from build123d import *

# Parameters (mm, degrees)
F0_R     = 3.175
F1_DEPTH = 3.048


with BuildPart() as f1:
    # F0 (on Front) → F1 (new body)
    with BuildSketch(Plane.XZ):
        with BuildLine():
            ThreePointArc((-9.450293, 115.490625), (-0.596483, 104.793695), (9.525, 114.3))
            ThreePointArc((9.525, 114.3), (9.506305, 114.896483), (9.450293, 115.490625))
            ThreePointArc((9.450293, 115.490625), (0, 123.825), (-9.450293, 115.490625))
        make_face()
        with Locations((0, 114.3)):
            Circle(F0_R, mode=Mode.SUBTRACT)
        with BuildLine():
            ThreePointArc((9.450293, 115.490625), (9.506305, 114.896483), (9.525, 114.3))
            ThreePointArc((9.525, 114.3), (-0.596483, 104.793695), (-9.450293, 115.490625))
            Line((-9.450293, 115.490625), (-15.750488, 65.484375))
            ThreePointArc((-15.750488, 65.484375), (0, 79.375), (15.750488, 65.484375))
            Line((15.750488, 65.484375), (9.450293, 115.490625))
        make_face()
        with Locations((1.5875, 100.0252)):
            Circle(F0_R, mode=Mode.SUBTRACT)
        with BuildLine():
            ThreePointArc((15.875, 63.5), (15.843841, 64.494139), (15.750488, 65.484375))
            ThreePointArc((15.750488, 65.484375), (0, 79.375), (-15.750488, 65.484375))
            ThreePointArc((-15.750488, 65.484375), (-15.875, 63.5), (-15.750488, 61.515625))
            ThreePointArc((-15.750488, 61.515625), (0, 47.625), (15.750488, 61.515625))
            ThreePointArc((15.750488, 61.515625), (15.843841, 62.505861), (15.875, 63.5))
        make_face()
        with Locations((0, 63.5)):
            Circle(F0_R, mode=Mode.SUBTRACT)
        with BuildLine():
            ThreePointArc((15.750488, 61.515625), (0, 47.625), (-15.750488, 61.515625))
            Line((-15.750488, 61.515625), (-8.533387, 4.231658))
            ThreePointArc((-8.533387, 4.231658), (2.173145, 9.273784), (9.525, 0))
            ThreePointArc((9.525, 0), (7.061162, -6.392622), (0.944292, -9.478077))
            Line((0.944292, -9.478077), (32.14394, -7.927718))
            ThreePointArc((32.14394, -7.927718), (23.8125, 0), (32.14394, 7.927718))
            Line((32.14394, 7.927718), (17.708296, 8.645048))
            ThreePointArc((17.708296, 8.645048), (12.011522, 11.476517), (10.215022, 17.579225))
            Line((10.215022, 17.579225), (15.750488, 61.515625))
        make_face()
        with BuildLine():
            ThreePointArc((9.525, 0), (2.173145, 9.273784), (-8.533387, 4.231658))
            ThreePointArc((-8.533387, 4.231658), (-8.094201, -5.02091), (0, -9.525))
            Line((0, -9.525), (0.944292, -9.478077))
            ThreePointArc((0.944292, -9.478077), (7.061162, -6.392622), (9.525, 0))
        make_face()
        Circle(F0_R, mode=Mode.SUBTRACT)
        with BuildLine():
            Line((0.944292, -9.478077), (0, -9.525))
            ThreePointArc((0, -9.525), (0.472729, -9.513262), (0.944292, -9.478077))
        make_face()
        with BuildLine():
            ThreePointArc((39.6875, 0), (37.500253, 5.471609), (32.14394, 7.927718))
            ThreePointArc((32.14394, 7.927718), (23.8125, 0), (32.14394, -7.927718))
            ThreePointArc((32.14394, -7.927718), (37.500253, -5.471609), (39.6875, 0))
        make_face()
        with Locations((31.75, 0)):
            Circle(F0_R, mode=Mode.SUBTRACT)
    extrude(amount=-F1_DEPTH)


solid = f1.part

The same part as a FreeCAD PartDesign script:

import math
import FreeCAD as App
import Part
import Sketcher

V = App.Vector
Q = App.Units.Quantity

doc = App.newDocument("Part")
body = doc.addObject("PartDesign::Body", "Body")

sketch1 = doc.addObject("Sketcher::SketchObject", "Sketch")
body.addObject(sketch1)
sketch1.AttachmentSupport = (doc.XZ_Plane, [""])
sketch1.MapMode = "FlatFace"
sketch1.addGeometry([
    Part.ArcOfCircle(Part.Circle(V(0, 114.3, 0), V(0, 0, 1), 9.525), math.radians(7.180756), math.radians(172.819244)),
    Part.LineSegment(V(-9.450293, 115.490625, 0), V(-15.750488, 65.484375, 0)),
    Part.ArcOfCircle(Part.Circle(V(-0.000035, 63.5, 0), V(0, 0, 1), 15.874965), math.radians(172.819228), math.radians(187.180772)),
    Part.LineSegment(V(-15.750488, 61.515625, 0), V(-8.533387, 4.231658, 0)),
    Part.ArcOfCircle(Part.Circle(V(0, 0, 0), V(0, 0, 1), 9.525), math.radians(153.623447), math.radians(270.000002)),
    Part.ArcOfCircle(Part.Circle(V(0, 0.00006, 0), V(0, 0, 1), 9.52506), math.radians(-90.000001), math.radians(-84.310487)),
    Part.LineSegment(V(0.944292, -9.478077, 0), V(32.14394, -7.927718, 0)),
    Part.ArcOfCircle(Part.Circle(V(31.750002, -0.000002, 0), V(0, 0, 1), 7.937498), math.radians(-87.155242), math.radians(0.000011)),
    Part.ArcOfCircle(Part.Circle(V(31.750002, 0.000002, 0), V(0, 0, 1), 7.937498), math.radians(-0.000011), math.radians(87.155242)),
    Part.LineSegment(V(32.14394, 7.927718, 0), V(17.708296, 8.645048, 0)),
    Part.ArcOfCircle(Part.Circle(V(18.102866, 16.58545, 0), V(0, 0, 1), 7.9502), math.radians(172.819247), math.radians(267.155228)),
    Part.LineSegment(V(10.215022, 17.579225, 0), V(15.750488, 61.515625, 0)),
    Part.ArcOfCircle(Part.Circle(V(-0.000171, 63.500013, 0), V(0, 0, 1), 15.875171), math.radians(-7.180725), math.radians(-0.000047)),
    Part.ArcOfCircle(Part.Circle(V(-0.000171, 63.499987, 0), V(0, 0, 1), 15.875171), math.radians(0.000047), math.radians(7.180725)),
    Part.LineSegment(V(15.750488, 65.484375, 0), V(9.450293, 115.490625, 0)),
    Part.Circle(V(0, 0, 0), V(0, 0, 1), 3.175),
    Part.Circle(V(31.75, 0, 0), V(0, 0, 1), 3.175),
    Part.Circle(V(0, 63.5, 0), V(0, 0, 1), 3.175),
    Part.Circle(V(1.5875, 100.0252, 0), V(0, 0, 1), 3.175),
    Part.Circle(V(0, 114.3, 0), V(0, 0, 1), 3.175),
], False)
sketch1.addConstraint([
    Sketcher.Constraint("Coincident", 0, 2, 1, 1),
    Sketcher.Constraint("Coincident", 1, 2, 2, 1),
    Sketcher.Constraint("Coincident", 2, 2, 3, 1),
    Sketcher.Constraint("Coincident", 3, 2, 4, 1),
    Sketcher.Constraint("Coincident", 4, 2, 5, 1),
    Sketcher.Constraint("Coincident", 5, 2, 6, 1),
    Sketcher.Constraint("Coincident", 6, 2, 7, 1),
    Sketcher.Constraint("Coincident", 7, 2, 8, 1),
    Sketcher.Constraint("Coincident", 8, 2, 9, 1),
    Sketcher.Constraint("Coincident", 9, 2, 10, 2),
    Sketcher.Constraint("Coincident", 10, 1, 11, 1),
    Sketcher.Constraint("Coincident", 11, 2, 12, 1),
    Sketcher.Constraint("Coincident", 12, 2, 13, 1),
    Sketcher.Constraint("Coincident", 13, 2, 14, 1),
    Sketcher.Constraint("Coincident", 14, 2, 0, 1),
    Sketcher.Constraint("Coincident", 4, 3, -1, 1),
    Sketcher.Constraint("Coincident", 15, 3, -1, 1),
    Sketcher.Constraint("Coincident", 8, 3, 7, 3),
    Sketcher.Constraint("Coincident", 16, 3, 7, 3),
    Sketcher.Constraint("Coincident", 19, 3, 0, 3),
    Sketcher.Constraint("PointOnObject", 0, 3, -2),
    Sketcher.Constraint("PointOnObject", 5, 3, -2),
    Sketcher.Constraint("PointOnObject", 7, 3, -1),
    Sketcher.Constraint("PointOnObject", 17, 3, -2),
    Sketcher.Constraint("PointOnObject", 4, 2, -2),
    Sketcher.Constraint("PointOnObject", 7, 2, -1),
    Sketcher.Constraint("Diameter", 15, Q("0.25 in")),
    Sketcher.Constraint("Diameter", 16, Q("0.25 in")),
    Sketcher.Constraint("Diameter", 17, Q("0.25 in")),
    Sketcher.Constraint("Diameter", 18, Q("0.25 in")),
    Sketcher.Constraint("Diameter", 19, Q("0.25 in")),
    Sketcher.Constraint("Radius", 0, Q("0.375 in")),
    Sketcher.Constraint("Radius", 4, Q("0.375 in")),
    Sketcher.Constraint("Radius", 7, Q("0.3124999 in")),
    Sketcher.Constraint("Radius", 10, Q("0.313 in")),
    Sketcher.Constraint("DistanceY", 2, 3, 0, 3, Q("2 in")),
    Sketcher.Constraint("DistanceY", 17, 3, 0, 3, Q("2 in")),
    Sketcher.Constraint("DistanceY", -1, 1, 0, 3, Q("4.5 in")),
    Sketcher.Constraint("DistanceY", -1, 1, 12, 2, Q("2.5 in")),
    Sketcher.Constraint("DistanceX", -1, 1, 7, 3, Q("1.2500001 in")),
    Sketcher.Constraint("DistanceX", -1, 1, 18, 3, Q("0.0625 in")),
    Sketcher.Constraint("DistanceY", -1, 1, 18, 3, Q("3.938 in")),
    Sketcher.Constraint("DistanceY", -1, 1, 0, 2, Q("4.546875 in")),
    Sketcher.Constraint("DistanceY", -1, 1, 1, 2, Q("2.578125 in")),
    Sketcher.Constraint("DistanceY", -1, 1, 2, 2, Q("2.421875 in")),
    Sketcher.Constraint("DistanceY", -1, 1, 11, 2, Q("2.421875 in")),
    Sketcher.Constraint("DistanceX", -1, 1, 12, 2, Q("0.625 in")),
    Sketcher.Constraint("DistanceY", -1, 1, 13, 2, Q("2.578125 in")),
    Sketcher.Constraint("DistanceY", -1, 1, 14, 2, Q("4.546875 in")),
    Sketcher.Constraint("Radius", 5, 9.52506),
    Sketcher.Constraint("Radius", 12, 15.875171),
    Sketcher.Constraint("Radius", 13, 15.875171),
    Sketcher.Constraint("Radius", 2, 15.874965),
    Sketcher.Constraint("DistanceX", 2, 3, 10, 3, 18.102901),
    Sketcher.Constraint("Distance", 3, 57.736812),
    Sketcher.Constraint("Distance", 11, 44.283729),
    Sketcher.Constraint("DistanceY", -1, 1, 10, 3, 16.58545),
    Sketcher.Constraint("DistanceX", 1, 2, -1, 1, 15.750488),
    Sketcher.Constraint("DistanceX", -1, 1, 6, 2, 32.14394),
    Sketcher.Constraint("DistanceX", -1, 1, 8, 2, 32.14394),
    Sketcher.Constraint("DistanceX", -1, 1, 11, 2, 15.750488),
    Sketcher.Constraint("DistanceX", -1, 1, 13, 2, 15.750488),
    Sketcher.Constraint("DistanceX", 5, 3, 5, 2, 0.944292),
    Sketcher.Constraint("DistanceX", 9, 2, 10, 3, 0.39457),
])
pad1 = doc.addObject("PartDesign::Pad", "Pad")
body.addObject(pad1)
pad1.Profile = sketch1
pad1.Length = Q("0.12 in")
pad1.Reversed = True

doc.recompute()
